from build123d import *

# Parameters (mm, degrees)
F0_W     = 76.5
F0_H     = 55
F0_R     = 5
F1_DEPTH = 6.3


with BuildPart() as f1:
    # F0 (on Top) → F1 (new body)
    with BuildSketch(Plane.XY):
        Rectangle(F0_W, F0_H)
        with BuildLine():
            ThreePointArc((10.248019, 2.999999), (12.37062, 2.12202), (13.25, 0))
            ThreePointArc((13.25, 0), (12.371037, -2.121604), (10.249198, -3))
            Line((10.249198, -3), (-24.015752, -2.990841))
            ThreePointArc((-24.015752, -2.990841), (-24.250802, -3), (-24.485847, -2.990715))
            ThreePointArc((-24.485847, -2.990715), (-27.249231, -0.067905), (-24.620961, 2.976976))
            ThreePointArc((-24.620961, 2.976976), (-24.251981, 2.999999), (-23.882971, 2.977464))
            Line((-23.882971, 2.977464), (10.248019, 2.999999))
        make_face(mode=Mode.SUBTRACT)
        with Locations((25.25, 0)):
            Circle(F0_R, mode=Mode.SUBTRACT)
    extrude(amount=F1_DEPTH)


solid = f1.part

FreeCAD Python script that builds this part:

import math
import FreeCAD as App
import Part
import Sketcher
Q = App.Units.Quantity

doc = App.newDocument("Part")
body = doc.addObject("PartDesign::Body", "Body")

# Sketch on XY plane
sketch1 = body.newObject("Sketcher::SketchObject", "Sketch")
sketch1.AttachmentSupport = (doc.getObject("XY_Plane"), [""])
sketch1.MapMode = "FlatFace"
sketch1.addGeometry(Part.LineSegment(App.Vector(-38.25, 27.5, 0), App.Vector(-38.25, -27.5, 0)), False)
sketch1.addGeometry(Part.LineSegment(App.Vector(-38.25, -27.5, 0), App.Vector(38.25, -27.5, 0)), False)
sketch1.addGeometry(Part.LineSegment(App.Vector(38.25, -27.5, 0), App.Vector(38.25, 27.5, 0)), False)
sketch1.addGeometry(Part.LineSegment(App.Vector(38.25, 27.5, 0), App.Vector(-38.25, 27.5, 0)), False)
sketch1.addGeometry(Part.LineSegment(App.Vector(-23.882971, 2.977464, 0), App.Vector(10.248019, 2.999999, 0)), False)
sketch1.addGeometry(Part.ArcOfCircle(Part.Circle(App.Vector(10.25, -0.000001, 0), App.Vector(0, 0, 1), 3), math.radians(0.00001), math.radians(90.037831)), False)
sketch1.addGeometry(Part.ArcOfCircle(Part.Circle(App.Vector(10.25, -0.000001, 0), App.Vector(0, 0, 1), 3), math.radians(-90.015325), math.radians(0.00001)), False)
sketch1.addGeometry(Part.LineSegment(App.Vector(10.249198, -3, 0), App.Vector(-24.015752, -2.990841, 0)), False)
sketch1.addGeometry(Part.ArcOfCircle(Part.Circle(App.Vector(-24.249998, 0.00002, 0), App.Vector(0, 0, 1), 3.00002), math.radians(-94.509009), math.radians(-85.521705)), False)
sketch1.addGeometry(Part.ArcOfCircle(Part.Circle(App.Vector(-24.25, 0, 0), App.Vector(0, 0, 1), 3), math.radians(97.103019), math.radians(265.490996)), False)
sketch1.addGeometry(Part.ArcOfCircle(Part.Circle(App.Vector(-24.249997, -0.000049, 0), App.Vector(0, 0, 1), 3.000049), math.radians(82.972824), math.radians(97.10295)), False)
sketch1.addGeometry(Part.Circle(App.Vector(25.25, 0, 0), App.Vector(0, 0, 1), 5), False)
sketch1.addConstraint(Sketcher.Constraint("Coincident", 0, 2, 1, 1))
sketch1.addConstraint(Sketcher.Constraint("Coincident", 1, 2, 2, 1))
sketch1.addConstraint(Sketcher.Constraint("Coincident", 2, 2, 3, 1))
sketch1.addConstraint(Sketcher.Constraint("Coincident", 3, 2, 0, 1))
sketch1.addConstraint(Sketcher.Constraint("Coincident", 4, 2, 5, 2))
sketch1.addConstraint(Sketcher.Constraint("Coincident", 5, 1, 6, 2))
sketch1.addConstraint(Sketcher.Constraint("Coincident", 6, 1, 7, 1))
sketch1.addConstraint(Sketcher.Constraint("Coincident", 7, 2, 8, 2))
sketch1.addConstraint(Sketcher.Constraint("Coincident", 8, 1, 9, 2))
sketch1.addConstraint(Sketcher.Constraint("Coincident", 9, 1, 10, 2))
sketch1.addConstraint(Sketcher.Constraint("Coincident", 10, 1, 4, 1))
sketch1.addConstraint(Sketcher.Constraint("Vertical", 0))
sketch1.addConstraint(Sketcher.Constraint("Horizontal", 1))
sketch1.addConstraint(Sketcher.Constraint("Vertical", 2))
sketch1.addConstraint(Sketcher.Constraint("Horizontal", 3))
sketch1.addConstraint(Sketcher.Constraint("Coincident", 6, 3, 5, 3))
sketch1.addConstraint(Sketcher.Constraint("PointOnObject", 5, 3, -1))
sketch1.addConstraint(Sketcher.Constraint("PointOnObject", 9, 3, -1))
sketch1.addConstraint(Sketcher.Constraint("PointOnObject", 11, 3, -1))
sketch1.addConstraint(Sketcher.Constraint("PointOnObject", 5, 1, -1))
sketch1.addConstraint(Sketcher.Constraint("Diameter", 11, Q("10 mm")))
sketch1.addConstraint(Sketcher.Constraint("Radius", 5, Q("3 mm")))
sketch1.addConstraint(Sketcher.Constraint("Radius", 9, Q("3 mm")))
sketch1.addConstraint(Sketcher.Constraint("DistanceY", 0, 2, 0, 1, Q("55 mm")))
sketch1.addConstraint(Sketcher.Constraint("DistanceX", 1, 1, 1, 2, Q("76.5 mm")))
sketch1.addConstraint(Sketcher.Constraint("DistanceX", 6, 3, 11, 3, Q("15 mm")))
sketch1.addConstraint(Sketcher.Constraint("DistanceX", 0, 2, 9, 3, Q("14 mm")))
sketch1.addConstraint(Sketcher.Constraint("DistanceX", 11, 3, 1, 2, Q("13 mm")))
sketch1.addConstraint(Sketcher.Constraint("DistanceY", 0, 2, -1, 1, Q("27.5 mm")))
sketch1.addConstraint(Sketcher.Constraint("DistanceX", 8, 3, 6, 3, Q("34.499998 mm")))
sketch1.addConstraint(Sketcher.Constraint("DistanceX", -1, 1, 5, 3, Q("10.25 mm")))
sketch1.addConstraint(Sketcher.Constraint("Radius", 8, Q("3.00002 mm")))
sketch1.addConstraint(Sketcher.Constraint("Radius", 10, Q("3.000049 mm")))
sketch1.addConstraint(Sketcher.Constraint("DistanceX", -1, 1, 6, 1, Q("10.249198 mm")))
sketch1.addConstraint(Sketcher.Constraint("Distance", 7, Q("34.264951 mm")))
sketch1.addConstraint(Sketcher.Constraint("DistanceX", -1, 1, 4, 2, Q("10.248019 mm")))
sketch1.addConstraint(Sketcher.Constraint("DistanceX", 9, 1, -1, 1, Q("24.620961 mm")))
sketch1.addConstraint(Sketcher.Constraint("DistanceX", 10, 1, -1, 1, Q("23.882971 mm")))
sketch1.addConstraint(Sketcher.Constraint("DistanceY", 0, 2, 10, 3, Q("27.499951 mm")))
sketch1.addConstraint(Sketcher.Constraint("DistanceX", 8, 1, 10, 3, Q("0.23585 mm")))
pad1 = body.newObject("PartDesign::Pad", "Pad")
pad1.Profile = sketch1
pad1.Length = 6.3

doc.recompute()
